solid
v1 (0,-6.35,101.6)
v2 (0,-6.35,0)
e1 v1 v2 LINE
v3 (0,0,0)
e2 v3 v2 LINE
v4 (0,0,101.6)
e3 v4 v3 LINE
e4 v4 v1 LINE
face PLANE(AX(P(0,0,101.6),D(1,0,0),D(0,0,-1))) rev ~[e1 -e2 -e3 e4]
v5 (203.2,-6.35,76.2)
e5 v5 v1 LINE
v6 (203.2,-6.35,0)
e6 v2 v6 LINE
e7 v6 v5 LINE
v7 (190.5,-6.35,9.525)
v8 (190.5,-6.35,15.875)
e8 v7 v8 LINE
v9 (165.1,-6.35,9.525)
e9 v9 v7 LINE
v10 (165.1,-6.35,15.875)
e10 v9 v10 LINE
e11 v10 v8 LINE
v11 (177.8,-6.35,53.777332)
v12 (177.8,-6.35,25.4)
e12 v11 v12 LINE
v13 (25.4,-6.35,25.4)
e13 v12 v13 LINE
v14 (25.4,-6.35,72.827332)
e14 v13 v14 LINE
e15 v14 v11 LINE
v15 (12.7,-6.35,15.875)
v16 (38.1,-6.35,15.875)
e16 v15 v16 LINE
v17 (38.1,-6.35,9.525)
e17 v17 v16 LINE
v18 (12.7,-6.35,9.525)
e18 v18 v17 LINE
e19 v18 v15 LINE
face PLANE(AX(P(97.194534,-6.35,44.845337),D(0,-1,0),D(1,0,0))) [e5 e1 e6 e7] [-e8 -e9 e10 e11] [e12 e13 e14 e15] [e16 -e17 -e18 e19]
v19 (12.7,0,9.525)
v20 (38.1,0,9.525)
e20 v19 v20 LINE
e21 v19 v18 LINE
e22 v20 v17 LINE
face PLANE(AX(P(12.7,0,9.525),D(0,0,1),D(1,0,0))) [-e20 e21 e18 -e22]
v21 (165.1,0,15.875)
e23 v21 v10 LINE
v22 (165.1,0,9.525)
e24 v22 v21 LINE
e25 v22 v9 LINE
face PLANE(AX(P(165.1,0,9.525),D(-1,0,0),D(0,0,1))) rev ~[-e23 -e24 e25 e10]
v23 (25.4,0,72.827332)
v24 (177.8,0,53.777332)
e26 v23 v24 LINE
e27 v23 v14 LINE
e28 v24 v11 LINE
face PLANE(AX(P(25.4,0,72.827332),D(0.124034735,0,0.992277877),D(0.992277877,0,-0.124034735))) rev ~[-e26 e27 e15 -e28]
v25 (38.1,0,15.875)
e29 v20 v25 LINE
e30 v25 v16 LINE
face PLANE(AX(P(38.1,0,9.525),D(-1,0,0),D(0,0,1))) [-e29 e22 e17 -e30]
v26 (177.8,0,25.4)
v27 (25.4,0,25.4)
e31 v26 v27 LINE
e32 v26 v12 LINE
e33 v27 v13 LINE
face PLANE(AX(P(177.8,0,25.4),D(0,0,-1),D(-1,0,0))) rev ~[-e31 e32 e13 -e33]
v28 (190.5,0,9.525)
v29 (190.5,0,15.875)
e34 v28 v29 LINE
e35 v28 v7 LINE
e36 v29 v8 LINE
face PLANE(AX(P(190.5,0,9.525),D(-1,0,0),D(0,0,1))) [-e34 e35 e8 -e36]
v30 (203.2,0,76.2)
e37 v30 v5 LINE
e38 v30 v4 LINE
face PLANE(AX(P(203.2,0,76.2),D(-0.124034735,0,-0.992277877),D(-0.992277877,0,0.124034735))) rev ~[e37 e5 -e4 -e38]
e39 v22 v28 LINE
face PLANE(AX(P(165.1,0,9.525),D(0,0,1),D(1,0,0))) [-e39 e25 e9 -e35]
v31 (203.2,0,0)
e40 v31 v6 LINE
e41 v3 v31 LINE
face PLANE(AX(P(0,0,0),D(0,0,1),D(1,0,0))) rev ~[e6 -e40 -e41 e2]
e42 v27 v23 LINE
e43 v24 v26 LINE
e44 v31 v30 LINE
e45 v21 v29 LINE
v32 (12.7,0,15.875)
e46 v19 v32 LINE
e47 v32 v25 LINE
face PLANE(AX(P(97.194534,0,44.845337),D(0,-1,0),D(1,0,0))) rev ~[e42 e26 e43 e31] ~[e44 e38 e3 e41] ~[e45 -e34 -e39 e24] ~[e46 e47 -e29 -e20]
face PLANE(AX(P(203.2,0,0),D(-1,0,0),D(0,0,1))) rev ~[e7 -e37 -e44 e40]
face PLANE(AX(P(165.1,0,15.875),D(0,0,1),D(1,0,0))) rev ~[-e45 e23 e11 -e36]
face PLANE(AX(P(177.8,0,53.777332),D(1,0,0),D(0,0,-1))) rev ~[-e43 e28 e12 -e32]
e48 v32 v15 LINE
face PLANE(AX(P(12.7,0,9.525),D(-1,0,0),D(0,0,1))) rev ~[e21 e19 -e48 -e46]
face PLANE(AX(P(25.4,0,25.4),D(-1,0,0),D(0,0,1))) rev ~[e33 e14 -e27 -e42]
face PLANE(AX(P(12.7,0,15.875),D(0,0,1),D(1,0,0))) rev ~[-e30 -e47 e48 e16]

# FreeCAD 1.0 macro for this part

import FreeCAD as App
import Part
import Sketcher
from FreeCAD import Vector
Q = App.Units.Quantity

doc = App.newDocument("Part")
body = doc.addObject("PartDesign::Body", "Body")

sketch1 = doc.addObject("Sketcher::SketchObject", "Sketch")
body.addObject(sketch1)
sketch1.AttachmentSupport = (doc.XZ_Plane, [""])
sketch1.MapMode = "FlatFace"
sketch1.addGeometry(Part.LineSegment(Vector(0, 101.6, 0), Vector(0, 0, 0)), False)
sketch1.addGeometry(Part.LineSegment(Vector(0, 0, 0), Vector(203.2, 0, 0)), False)
sketch1.addGeometry(Part.LineSegment(Vector(203.2, 0, 0), Vector(203.2, 76.2, 0)), False)
sketch1.addGeometry(Part.LineSegment(Vector(203.2, 76.2, 0), Vector(0, 101.6, 0)), False)
sketch1.addGeometry(Part.LineSegment(Vector(38.1, 9.525, 0), Vector(12.7, 9.525, 0)), False)
sketch1.addGeometry(Part.LineSegment(Vector(12.7, 9.525, 0), Vector(12.7, 15.875, 0)), False)
sketch1.addGeometry(Part.LineSegment(Vector(12.7, 15.875, 0), Vector(38.1, 15.875, 0)), False)
sketch1.addGeometry(Part.LineSegment(Vector(38.1, 15.875, 0), Vector(38.1, 9.525, 0)), False)
sketch1.addGeometry(Part.LineSegment(Vector(190.5, 9.525, 0), Vector(165.1, 9.525, 0)), False)
sketch1.addGeometry(Part.LineSegment(Vector(165.1, 9.525, 0), Vector(165.1, 15.875, 0)), False)
sketch1.addGeometry(Part.LineSegment(Vector(165.1, 15.875, 0), Vector(190.5, 15.875, 0)), False)
sketch1.addGeometry(Part.LineSegment(Vector(190.5, 15.875, 0), Vector(190.5, 9.525, 0)), False)
sketch1.addGeometry(Part.LineSegment(Vector(177.8, 25.4, 0), Vector(25.4, 25.4, 0)), False)
sketch1.addGeometry(Part.LineSegment(Vector(25.4, 25.4, 0), Vector(25.4, 72.827332, 0)), False)
sketch1.addGeometry(Part.LineSegment(Vector(25.4, 72.827332, 0), Vector(177.8, 53.777332, 0)), False)
sketch1.addGeometry(Part.LineSegment(Vector(177.8, 53.777332, 0), Vector(177.8, 25.4, 0)), False)
sketch1.addConstraint(Sketcher.Constraint("Coincident", 0, 2, 1, 1))
sketch1.addConstraint(Sketcher.Constraint("Coincident", 1, 2, 2, 1))
sketch1.addConstraint(Sketcher.Constraint("Coincident", 2, 2, 3, 1))
sketch1.addConstraint(Sketcher.Constraint("Coincident", 3, 2, 0, 1))
sketch1.addConstraint(Sketcher.Constraint("Coincident", 4, 2, 5, 1))
sketch1.addConstraint(Sketcher.Constraint("Coincident", 5, 2, 6, 1))
sketch1.addConstraint(Sketcher.Constraint("Coincident", 6, 2, 7, 1))
sketch1.addConstraint(Sketcher.Constraint("Coincident", 7, 2, 4, 1))
sketch1.addConstraint(Sketcher.Constraint("Coincident", 8, 2, 9, 1))
sketch1.addConstraint(Sketcher.Constraint("Coincident", 9, 2, 10, 1))
sketch1.addConstraint(Sketcher.Constraint("Coincident", 10, 2, 11, 1))
sketch1.addConstraint(Sketcher.Constraint("Coincident", 11, 2, 8, 1))
sketch1.addConstraint(Sketcher.Constraint("Coincident", 12, 2, 13, 1))
sketch1.addConstraint(Sketcher.Constraint("Coincident", 13, 2, 14, 1))
sketch1.addConstraint(Sketcher.Constraint("Coincident", 14, 2, 15, 1))
sketch1.addConstraint(Sketcher.Constraint("Coincident", 15, 2, 12, 1))
sketch1.addConstraint(Sketcher.Constraint("Vertical", 0))
sketch1.addConstraint(Sketcher.Constraint("Horizontal", 1))
sketch1.addConstraint(Sketcher.Constraint("Vertical", 2))
sketch1.addConstraint(Sketcher.Constraint("Horizontal", 4))
sketch1.addConstraint(Sketcher.Constraint("Vertical", 5))
sketch1.addConstraint(Sketcher.Constraint("Horizontal", 6))
sketch1.addConstraint(Sketcher.Constraint("Vertical", 7))
sketch1.addConstraint(Sketcher.Constraint("Horizontal", 8))
sketch1.addConstraint(Sketcher.Constraint("Vertical", 9))
sketch1.addConstraint(Sketcher.Constraint("Horizontal", 10))
sketch1.addConstraint(Sketcher.Constraint("Vertical", 11))
sketch1.addConstraint(Sketcher.Constraint("Horizontal", 12))
sketch1.addConstraint(Sketcher.Constraint("Vertical", 13))
sketch1.addConstraint(Sketcher.Constraint("Vertical", 15))
sketch1.addConstraint(Sketcher.Constraint("Coincident", 0, 2, -1, 1))
sketch1.addConstraint(Sketcher.Constraint("Parallel", 3, 14))
sketch1.addConstraint(Sketcher.Constraint("Horizontal", 7, 2, 8, 2))
sketch1.addConstraint(Sketcher.Constraint("Horizontal", 6, 2, 9, 2))
sketch1.addConstraint(Sketcher.Constraint("Equal", 6, 8))
sketch1.addConstraint(Sketcher.Constraint("DistanceX", 1, 1, 1, 2, Q("8 in")))
sketch1.addConstraint(Sketcher.Constraint("DistanceX", 4, 2, 4, 1, Q("1 in")))
sketch1.addConstraint(Sketcher.Constraint("DistanceX", 12, 2, 12, 1, Q("6 in")))
sketch1.addConstraint(Sketcher.Constraint("DistanceY", 0, 2, 0, 1, Q("4 in")))
sketch1.addConstraint(Sketcher.Constraint("DistanceY", 2, 1, 2, 2, Q("3 in")))
sketch1.addConstraint(Sketcher.Constraint("DistanceX", -1, 1, 12, 2, Q("1 in")))
sketch1.addConstraint(Sketcher.Constraint("DistanceY", -1, 1, 12, 2, Q("1 in")))
sketch1.addConstraint(Sketcher.Constraint("DistanceX", 7, 2, 8, 2, Q("5 in")))
sketch1.addConstraint(Sketcher.Constraint("DistanceY", 5, 1, 5, 2, Q("0.25 in")))
sketch1.addConstraint(Sketcher.Constraint("DistanceX", -1, 1, 4, 2, Q("0.5 in")))
sketch1.addConstraint(Sketcher.Constraint("DistanceY", -1, 1, 4, 2, Q("0.375 in")))
sketch1.addConstraint(Sketcher.Constraint("DistanceY", 13, 1, 13, 2, 47.427332))
pad1 = doc.addObject("PartDesign::Pad", "Pad")
body.addObject(pad1)
pad1.Profile = sketch1
pad1.Length = Q("0.25 in")

doc.recompute()
